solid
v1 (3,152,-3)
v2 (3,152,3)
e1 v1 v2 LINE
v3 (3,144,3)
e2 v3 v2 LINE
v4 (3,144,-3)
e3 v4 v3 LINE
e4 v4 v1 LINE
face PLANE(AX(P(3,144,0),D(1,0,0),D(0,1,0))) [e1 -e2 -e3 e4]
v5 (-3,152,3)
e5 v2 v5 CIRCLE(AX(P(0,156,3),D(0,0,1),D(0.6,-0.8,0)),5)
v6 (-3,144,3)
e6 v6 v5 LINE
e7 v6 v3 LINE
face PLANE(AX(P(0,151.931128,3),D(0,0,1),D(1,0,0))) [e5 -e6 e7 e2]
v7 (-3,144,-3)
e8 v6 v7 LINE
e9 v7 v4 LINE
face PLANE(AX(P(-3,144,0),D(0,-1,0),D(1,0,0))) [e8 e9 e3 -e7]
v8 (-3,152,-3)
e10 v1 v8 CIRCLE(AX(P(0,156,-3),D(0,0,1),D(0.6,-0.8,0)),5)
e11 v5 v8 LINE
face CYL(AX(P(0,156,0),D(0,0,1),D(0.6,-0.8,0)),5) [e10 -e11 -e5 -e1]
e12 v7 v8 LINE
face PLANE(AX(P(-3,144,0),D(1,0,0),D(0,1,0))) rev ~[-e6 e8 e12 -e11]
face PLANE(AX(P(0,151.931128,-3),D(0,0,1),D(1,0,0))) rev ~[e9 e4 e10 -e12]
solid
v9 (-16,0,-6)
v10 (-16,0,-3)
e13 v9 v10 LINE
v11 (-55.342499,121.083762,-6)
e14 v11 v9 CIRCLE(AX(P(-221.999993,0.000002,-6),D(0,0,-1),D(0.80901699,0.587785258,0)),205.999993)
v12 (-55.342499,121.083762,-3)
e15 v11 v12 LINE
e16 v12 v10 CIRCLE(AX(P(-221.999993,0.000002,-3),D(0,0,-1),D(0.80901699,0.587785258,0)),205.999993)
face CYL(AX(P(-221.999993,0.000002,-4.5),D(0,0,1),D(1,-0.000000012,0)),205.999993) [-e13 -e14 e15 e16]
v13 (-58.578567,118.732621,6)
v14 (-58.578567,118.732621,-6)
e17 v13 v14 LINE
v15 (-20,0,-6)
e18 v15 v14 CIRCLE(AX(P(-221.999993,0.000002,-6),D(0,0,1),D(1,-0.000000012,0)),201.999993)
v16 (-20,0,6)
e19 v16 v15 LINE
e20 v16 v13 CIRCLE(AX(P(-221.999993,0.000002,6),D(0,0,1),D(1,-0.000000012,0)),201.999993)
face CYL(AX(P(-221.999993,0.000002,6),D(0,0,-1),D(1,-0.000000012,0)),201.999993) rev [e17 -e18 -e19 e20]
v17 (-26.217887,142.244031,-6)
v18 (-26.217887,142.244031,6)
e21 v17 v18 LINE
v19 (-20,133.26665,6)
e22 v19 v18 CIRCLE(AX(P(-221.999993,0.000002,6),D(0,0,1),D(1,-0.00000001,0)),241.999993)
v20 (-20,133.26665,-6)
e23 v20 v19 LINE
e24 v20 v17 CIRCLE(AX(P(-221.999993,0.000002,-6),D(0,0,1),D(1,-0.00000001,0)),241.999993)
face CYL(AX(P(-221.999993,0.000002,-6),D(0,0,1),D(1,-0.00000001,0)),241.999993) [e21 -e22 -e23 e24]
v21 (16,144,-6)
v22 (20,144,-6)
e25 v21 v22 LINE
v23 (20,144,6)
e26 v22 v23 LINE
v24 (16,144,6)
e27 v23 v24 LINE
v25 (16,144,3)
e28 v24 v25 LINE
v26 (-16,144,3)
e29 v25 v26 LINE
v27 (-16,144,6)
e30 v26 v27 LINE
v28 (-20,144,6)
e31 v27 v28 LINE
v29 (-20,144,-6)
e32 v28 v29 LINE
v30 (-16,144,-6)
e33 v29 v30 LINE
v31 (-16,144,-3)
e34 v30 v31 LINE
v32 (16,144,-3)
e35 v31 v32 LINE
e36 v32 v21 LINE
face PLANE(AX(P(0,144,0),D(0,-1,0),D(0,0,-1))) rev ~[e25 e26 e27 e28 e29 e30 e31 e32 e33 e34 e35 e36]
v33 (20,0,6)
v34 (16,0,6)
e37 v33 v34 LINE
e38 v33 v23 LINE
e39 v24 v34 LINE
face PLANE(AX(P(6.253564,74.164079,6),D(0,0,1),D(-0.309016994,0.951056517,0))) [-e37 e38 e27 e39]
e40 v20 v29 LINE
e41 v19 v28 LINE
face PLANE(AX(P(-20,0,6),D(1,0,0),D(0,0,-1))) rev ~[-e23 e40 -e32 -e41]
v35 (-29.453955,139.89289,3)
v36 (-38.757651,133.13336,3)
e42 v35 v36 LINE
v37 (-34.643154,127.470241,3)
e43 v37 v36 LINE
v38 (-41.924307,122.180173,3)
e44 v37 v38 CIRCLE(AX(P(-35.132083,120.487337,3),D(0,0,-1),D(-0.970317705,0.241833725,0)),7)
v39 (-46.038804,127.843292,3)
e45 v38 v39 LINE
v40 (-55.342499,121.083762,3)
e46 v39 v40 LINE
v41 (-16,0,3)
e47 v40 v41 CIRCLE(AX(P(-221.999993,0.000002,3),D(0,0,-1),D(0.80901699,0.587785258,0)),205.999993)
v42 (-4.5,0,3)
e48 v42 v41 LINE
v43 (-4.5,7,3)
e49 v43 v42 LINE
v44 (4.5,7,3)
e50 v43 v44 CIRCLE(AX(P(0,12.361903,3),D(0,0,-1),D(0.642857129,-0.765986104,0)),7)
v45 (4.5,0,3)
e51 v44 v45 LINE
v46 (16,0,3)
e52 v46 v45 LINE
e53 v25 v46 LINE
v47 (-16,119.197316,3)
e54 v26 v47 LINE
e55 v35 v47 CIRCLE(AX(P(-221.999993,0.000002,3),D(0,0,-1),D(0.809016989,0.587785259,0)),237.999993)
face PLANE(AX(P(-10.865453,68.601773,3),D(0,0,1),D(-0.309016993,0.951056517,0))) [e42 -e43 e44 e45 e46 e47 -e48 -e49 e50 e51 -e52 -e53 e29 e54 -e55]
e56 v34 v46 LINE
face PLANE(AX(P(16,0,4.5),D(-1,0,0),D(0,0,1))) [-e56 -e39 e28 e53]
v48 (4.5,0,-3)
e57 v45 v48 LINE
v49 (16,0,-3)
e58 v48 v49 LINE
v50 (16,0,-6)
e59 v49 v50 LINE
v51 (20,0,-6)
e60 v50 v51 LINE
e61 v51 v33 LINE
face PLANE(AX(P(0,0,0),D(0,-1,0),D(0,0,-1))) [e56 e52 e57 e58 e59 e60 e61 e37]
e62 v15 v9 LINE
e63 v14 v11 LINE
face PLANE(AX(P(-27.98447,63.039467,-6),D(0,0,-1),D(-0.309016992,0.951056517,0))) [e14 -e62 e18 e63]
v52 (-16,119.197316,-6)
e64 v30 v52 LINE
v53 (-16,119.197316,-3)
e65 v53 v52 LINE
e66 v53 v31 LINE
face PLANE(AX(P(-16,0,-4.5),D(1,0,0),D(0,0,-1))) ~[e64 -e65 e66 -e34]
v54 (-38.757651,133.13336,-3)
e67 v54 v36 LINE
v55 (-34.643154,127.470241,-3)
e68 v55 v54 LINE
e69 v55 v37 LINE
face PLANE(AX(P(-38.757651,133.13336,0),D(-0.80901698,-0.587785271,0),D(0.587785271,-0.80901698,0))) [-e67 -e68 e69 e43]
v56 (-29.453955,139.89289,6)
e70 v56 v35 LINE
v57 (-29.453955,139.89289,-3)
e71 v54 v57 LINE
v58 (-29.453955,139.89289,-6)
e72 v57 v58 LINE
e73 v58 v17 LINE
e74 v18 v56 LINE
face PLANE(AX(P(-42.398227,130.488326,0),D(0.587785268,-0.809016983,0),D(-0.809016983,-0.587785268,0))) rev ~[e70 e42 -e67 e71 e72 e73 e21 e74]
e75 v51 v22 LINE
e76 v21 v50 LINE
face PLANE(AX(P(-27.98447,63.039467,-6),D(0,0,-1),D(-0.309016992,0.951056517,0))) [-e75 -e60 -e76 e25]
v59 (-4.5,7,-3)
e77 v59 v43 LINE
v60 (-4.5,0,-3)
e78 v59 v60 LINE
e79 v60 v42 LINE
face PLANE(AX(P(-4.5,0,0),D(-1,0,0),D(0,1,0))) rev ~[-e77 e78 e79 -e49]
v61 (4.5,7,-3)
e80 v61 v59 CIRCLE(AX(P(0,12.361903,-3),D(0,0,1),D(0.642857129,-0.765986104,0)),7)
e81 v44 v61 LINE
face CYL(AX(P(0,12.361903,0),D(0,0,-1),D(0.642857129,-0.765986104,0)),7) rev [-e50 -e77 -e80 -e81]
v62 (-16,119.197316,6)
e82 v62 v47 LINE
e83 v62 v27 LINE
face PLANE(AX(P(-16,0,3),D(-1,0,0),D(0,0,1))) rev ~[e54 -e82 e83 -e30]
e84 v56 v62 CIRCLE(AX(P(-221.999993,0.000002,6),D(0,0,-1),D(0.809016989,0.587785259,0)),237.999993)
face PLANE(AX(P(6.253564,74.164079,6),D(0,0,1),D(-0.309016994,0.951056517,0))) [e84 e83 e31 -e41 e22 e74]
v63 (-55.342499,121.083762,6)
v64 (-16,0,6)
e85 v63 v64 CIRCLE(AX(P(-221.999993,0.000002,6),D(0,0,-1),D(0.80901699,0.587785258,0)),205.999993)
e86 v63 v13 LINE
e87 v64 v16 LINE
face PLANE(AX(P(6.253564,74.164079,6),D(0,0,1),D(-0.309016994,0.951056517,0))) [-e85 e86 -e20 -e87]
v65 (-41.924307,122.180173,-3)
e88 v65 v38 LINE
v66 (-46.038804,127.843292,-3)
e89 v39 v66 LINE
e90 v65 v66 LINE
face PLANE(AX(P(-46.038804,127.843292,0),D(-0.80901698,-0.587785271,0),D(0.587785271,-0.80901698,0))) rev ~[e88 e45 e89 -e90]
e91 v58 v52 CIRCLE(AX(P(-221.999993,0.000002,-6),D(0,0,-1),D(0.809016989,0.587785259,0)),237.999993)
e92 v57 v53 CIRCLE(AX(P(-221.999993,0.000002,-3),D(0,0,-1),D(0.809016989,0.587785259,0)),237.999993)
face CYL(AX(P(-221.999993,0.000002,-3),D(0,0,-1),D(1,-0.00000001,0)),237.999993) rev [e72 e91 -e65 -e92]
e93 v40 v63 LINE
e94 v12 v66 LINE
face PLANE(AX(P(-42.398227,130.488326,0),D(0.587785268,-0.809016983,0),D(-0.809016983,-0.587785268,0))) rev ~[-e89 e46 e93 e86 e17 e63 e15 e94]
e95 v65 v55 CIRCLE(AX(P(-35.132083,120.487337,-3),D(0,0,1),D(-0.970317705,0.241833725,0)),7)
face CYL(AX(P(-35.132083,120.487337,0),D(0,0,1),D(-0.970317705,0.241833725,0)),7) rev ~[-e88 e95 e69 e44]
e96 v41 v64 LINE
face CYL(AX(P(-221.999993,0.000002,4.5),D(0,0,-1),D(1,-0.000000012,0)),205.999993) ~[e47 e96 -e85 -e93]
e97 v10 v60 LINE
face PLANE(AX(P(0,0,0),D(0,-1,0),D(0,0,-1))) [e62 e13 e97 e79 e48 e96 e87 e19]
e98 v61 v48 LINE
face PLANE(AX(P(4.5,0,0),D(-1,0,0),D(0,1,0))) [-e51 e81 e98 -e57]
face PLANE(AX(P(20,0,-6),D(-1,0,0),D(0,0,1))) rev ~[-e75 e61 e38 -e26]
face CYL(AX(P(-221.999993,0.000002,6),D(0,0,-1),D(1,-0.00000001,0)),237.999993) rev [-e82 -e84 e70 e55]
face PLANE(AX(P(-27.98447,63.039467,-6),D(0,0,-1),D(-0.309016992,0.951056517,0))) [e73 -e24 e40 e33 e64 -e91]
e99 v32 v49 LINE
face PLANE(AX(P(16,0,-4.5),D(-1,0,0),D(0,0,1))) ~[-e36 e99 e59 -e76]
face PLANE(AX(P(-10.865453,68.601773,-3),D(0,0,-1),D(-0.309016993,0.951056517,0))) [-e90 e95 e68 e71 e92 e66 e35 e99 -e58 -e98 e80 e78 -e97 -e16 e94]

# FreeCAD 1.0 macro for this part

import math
import FreeCAD as App
import Part
import Sketcher

V = App.Vector
Q = App.Units.Quantity


def add_polygon(sketch, points):
    """Adds a closed chain of lines whose ends are joined by coincident constraints."""
    first, n = sketch.GeometryCount, len(points)
    for a, b in zip(points, points[1:] + points[:1]):
        sketch.addGeometry(Part.LineSegment(App.Vector(*a, 0), App.Vector(*b, 0)), False)
    for i in range(n):
        sketch.addConstraint(Sketcher.Constraint("Coincident", first + i, 2, first + (i + 1) % n, 1))

doc = App.newDocument("Part")
body = doc.addObject("PartDesign::Body", "Body")

# Sketch on XZ plane
sketch1 = body.newObject("Sketcher::SketchObject", "Sketch")
sketch1.AttachmentSupport = (doc.getObject("XZ_Plane"), [""])
sketch1.MapMode = "FlatFace"
add_polygon(sketch1, [(-20, 6), (-20, -6), (-16, -6), (-16, -3), (16, -3), (16, -6), (20, -6), (20, 6), (16, 6), (16, 3), (-16, 3), (-16, 6)])  # lines 0-11
sketch1.addConstraint([
    Sketcher.Constraint("Vertical", 0),
    Sketcher.Constraint("Horizontal", 1),
    Sketcher.Constraint("Vertical", 2),
    Sketcher.Constraint("Horizontal", 3),
    Sketcher.Constraint("Vertical", 4),
    Sketcher.Constraint("Horizontal", 5),
    Sketcher.Constraint("Vertical", 6),
    Sketcher.Constraint("Horizontal", 7),
    Sketcher.Constraint("Vertical", 8),
    Sketcher.Constraint("Horizontal", 9),
    Sketcher.Constraint("Vertical", 10),
    Sketcher.Constraint("Horizontal", 11),
    Sketcher.Constraint("Symmetric", 0, 2, 6, 2, -1, 1),
    Sketcher.Constraint("Symmetric", 2, 2, 8, 2, -1, 1),
    Sketcher.Constraint("Symmetric", 4, 2, 10, 2, -1, 1),
    Sketcher.Constraint("Symmetric", 1, 2, 4, 2, -2),
    Sketcher.Constraint("DistanceX", 1, 1, 1, 2, 4.0),
    Sketcher.Constraint("DistanceX", 3, 1, 3, 2, 32.0),
    Sketcher.Constraint("DistanceY", 0, 2, 0, 1, 12.0),
    Sketcher.Constraint("DistanceY", 2, 1, 2, 2, 3.0),
])

# Sketch on XY plane
sketch2 = body.newObject("Sketcher::SketchObject", "Sketch001")
sketch2.AttachmentSupport = (doc.getObject("XY_Plane"), [""])
sketch2.MapMode = "FlatFace"
sketch2.addGeometry(Part.ArcOfCircle(Part.Circle(V(-222, 0, 0), V(0, 0, 1), 222), math.radians(0), math.radians(36)), False)
sketch2.addConstraint([
    Sketcher.Constraint("Coincident", 0, 1, -1, 1),
    Sketcher.Constraint("Radius", 0, 221.999993),
    Sketcher.Constraint("DistanceX", 0, 2, -1, 1, 42.398227),
    Sketcher.Constraint("DistanceY", -1, 1, 0, 2, 130.488326),
])
doc.recompute()

additivepipe = body.newObject("PartDesign::AdditivePipe", "AdditivePipe")
additivepipe.Profile = sketch1
additivepipe.Spine = (sketch2, ["Edge1"])

# Sketch on XZ plane
sketch3 = body.newObject("Sketcher::SketchObject", "Sketch002")
sketch3.AttachmentSupport = (doc.getObject("XZ_Plane"), [""])
sketch3.MapMode = "FlatFace"
add_polygon(sketch3, [(-20, 6), (-20, -6), (-16, -6), (-16, -3), (16, -3), (16, -6), (20, -6), (20, 6), (16, 6), (16, 3), (-16, 3), (-16, 6)])  # lines 0-11
sketch3.addConstraint([
    Sketcher.Constraint("Vertical", 0),
    Sketcher.Constraint("Horizontal", 1),
    Sketcher.Constraint("Vertical", 2),
    Sketcher.Constraint("Horizontal", 3),
    Sketcher.Constraint("Vertical", 4),
    Sketcher.Constraint("Horizontal", 5),
    Sketcher.Constraint("Vertical", 6),
    Sketcher.Constraint("Horizontal", 7),
    Sketcher.Constraint("Vertical", 8),
    Sketcher.Constraint("Horizontal", 9),
    Sketcher.Constraint("Vertical", 10),
    Sketcher.Constraint("Horizontal", 11),
    Sketcher.Constraint("Symmetric", 0, 2, 6, 2, -1, 1),
    Sketcher.Constraint("Symmetric", 2, 2, 8, 2, -1, 1),
    Sketcher.Constraint("Symmetric", 4, 2, 10, 2, -1, 1),
    Sketcher.Constraint("Symmetric", 1, 2, 4, 2, -2),
    Sketcher.Constraint("DistanceX", 1, 1, 1, 2, 4.0),
    Sketcher.Constraint("DistanceX", 3, 1, 3, 2, 32.0),
    Sketcher.Constraint("DistanceY", 0, 2, 0, 1, 12.0),
    Sketcher.Constraint("DistanceY", 2, 1, 2, 2, 3.0),
])

# Sketch on XY plane
sketch4 = body.newObject("Sketcher::SketchObject", "Sketch003")
sketch4.AttachmentSupport = (doc.getObject("XY_Plane"), [""])
sketch4.MapMode = "FlatFace"
sketch4.addGeometry(Part.LineSegment(V(0, 0, 0), V(0, 144, 0)), False)
sketch4.addConstraint([
    Sketcher.Constraint("Vertical", 0),
    Sketcher.Constraint("Coincident", 0, 1, -1, 1),
    Sketcher.Constraint("DistanceY", 0, 1, 0, 2, 144.0),
])
doc.recompute()

additivepipe2 = body.newObject("PartDesign::AdditivePipe", "AdditivePipe001")
additivepipe2.Profile = sketch3
additivepipe2.Spine = (sketch4, ["Edge1"])

# Sketch on XZ plane
sketch5 = body.newObject("Sketcher::SketchObject", "Sketch004")
sketch5.AttachmentSupport = (doc.getObject("XZ_Plane"), [""])
sketch5.MapMode = "FlatFace"
add_polygon(sketch5, [(-16, 6), (-16, 3), (16, 3), (16, 6)])  # lines 0-3
sketch5.addConstraint([
    Sketcher.Constraint("Vertical", 0),
    Sketcher.Constraint("Horizontal", 1),
    Sketcher.Constraint("Vertical", 2),
    Sketcher.Constraint("Horizontal", 3),
    Sketcher.Constraint("DistanceX", 1, 1, 1, 2, 32.0),
    Sketcher.Constraint("DistanceY", 0, 2, 0, 1, 3.0),
    Sketcher.Constraint("DistanceX", 0, 2, -1, 1, 16.0),
    Sketcher.Constraint("DistanceY", -1, 1, 0, 2, 3.0),
])

# Sketch on XY plane
sketch6 = body.newObject("Sketcher::SketchObject", "Sketch005")
sketch6.AttachmentSupport = (doc.getObject("XY_Plane"), [""])
sketch6.MapMode = "FlatFace"
sketch6.addGeometry(Part.ArcOfCircle(Part.Circle(V(-222, 0, 0), V(0, 0, 1), 222), math.radians(0), math.radians(36)), False)
sketch6.addConstraint([
    Sketcher.Constraint("Coincident", 0, 1, -1, 1),
    Sketcher.Constraint("Radius", 0, 221.999993),
    Sketcher.Constraint("DistanceX", 0, 2, -1, 1, 42.398227),
    Sketcher.Constraint("DistanceY", -1, 1, 0, 2, 130.488326),
])
doc.recompute()

subtractivepipe = body.newObject("PartDesign::SubtractivePipe", "SubtractivePipe")
subtractivepipe.Profile = sketch5
subtractivepipe.Spine = (sketch6, ["Edge1"])

# Sketch on XZ plane
sketch7 = body.newObject("Sketcher::SketchObject", "Sketch006")
sketch7.AttachmentSupport = (doc.getObject("XZ_Plane"), [""])
sketch7.MapMode = "FlatFace"
add_polygon(sketch7, [(-16, 6), (-16, 3), (16, 3), (16, 6)])  # lines 0-3
sketch7.addConstraint([
    Sketcher.Constraint("Vertical", 0),
    Sketcher.Constraint("Horizontal", 1),
    Sketcher.Constraint("Vertical", 2),
    Sketcher.Constraint("Horizontal", 3),
    Sketcher.Constraint("DistanceX", 1, 1, 1, 2, 32.0),
    Sketcher.Constraint("DistanceY", 0, 2, 0, 1, 3.0),
    Sketcher.Constraint("DistanceX", 0, 2, -1, 1, 16.0),
    Sketcher.Constraint("DistanceY", -1, 1, 0, 2, 3.0),
])

# Sketch on XY plane
sketch8 = body.newObject("Sketcher::SketchObject", "Sketch007")
sketch8.AttachmentSupport = (doc.getObject("XY_Plane"), [""])
sketch8.MapMode = "FlatFace"
sketch8.addGeometry(Part.LineSegment(V(0, 0, 0), V(0, 144, 0)), False)
sketch8.addConstraint([
    Sketcher.Constraint("Vertical", 0),
    Sketcher.Constraint("Coincident", 0, 1, -1, 1),
    Sketcher.Constraint("DistanceY", 0, 1, 0, 2, 144.0),
])
doc.recompute()

subtractivepipe2 = body.newObject("PartDesign::SubtractivePipe", "SubtractivePipe001")
subtractivepipe2.Profile = sketch7
subtractivepipe2.Spine = (sketch8, ["Edge1"])
doc.recompute()

mirrored = body.newObject("PartDesign::Mirrored", "Mirrored")
mirrored.Originals = [subtractivepipe]
mirrored.MirrorPlane = (doc.getObject("XY_Plane"), [""])
body.Tip = mirrored
doc.recompute()

mirrored2 = body.newObject("PartDesign::Mirrored", "Mirrored001")
mirrored2.Originals = [subtractivepipe2]
mirrored2.MirrorPlane = (doc.getObject("XY_Plane"), [""])
body.Tip = mirrored2

# Sketch on XY plane
sketch9 = body.newObject("Sketcher::SketchObject", "Sketch008")
sketch9.AttachmentSupport = (doc.getObject("XY_Plane"), [""])
sketch9.MapMode = "FlatFace"
sketch9.addGeometry([
    Part.LineSegment(V(-4, 0, 0), V(4, 0, 0)),
    Part.LineSegment(V(4, 0, 0), V(4, 7, 0)),
    Part.ArcOfCircle(Part.Circle(V(0, 12, 0), V(0, 0, 1), 7), math.radians(-50), math.radians(230)),
    Part.LineSegment(V(-4, 7, 0), V(-4, 0, 0)),
], False)
sketch9.addConstraint([
    Sketcher.Constraint("Coincident", 0, 2, 1, 1),
    Sketcher.Constraint("Coincident", 1, 2, 2, 1),
    Sketcher.Constraint("Coincident", 2, 2, 3, 1),
    Sketcher.Constraint("Coincident", 3, 2, 0, 1),
    Sketcher.Constraint("Horizontal", 0),
    Sketcher.Constraint("Vertical", 1),
    Sketcher.Constraint("Vertical", 3),
    Sketcher.Constraint("Symmetric", 0, 2, 3, 2, -1, 1),
    Sketcher.Constraint("PointOnObject", 2, 3, -2),
    Sketcher.Constraint("Radius", 2, 7.0),
    Sketcher.Constraint("DistanceX", 0, 1, 0, 2, 9.0),
    Sketcher.Constraint("DistanceY", 1, 1, 1, 2, 7.0),
])
pocket1 = body.newObject("PartDesign::Pocket", "Pocket")
pocket1.Profile = sketch9
pocket1.Type = "ThroughAll"
pocket1.Midplane = True

# Sketch on XY plane
sketch10 = body.newObject("Sketcher::SketchObject", "Sketch009")
sketch10.AttachmentSupport = (doc.getObject("XY_Plane"), [""])
sketch10.MapMode = "FlatFace"
sketch10.addGeometry([
    Part.LineSegment(V(-39, 133, 0), V(-46, 128, 0)),
    Part.LineSegment(V(-46, 128, 0), V(-42, 122, 0)),
    Part.ArcOfCircle(Part.Circle(V(-35, 120, 0), V(0, 0, 1), 7), math.radians(166), math.radians(446)),
    Part.LineSegment(V(-35, 127, 0), V(-39, 133, 0)),
], False)
sketch10.addConstraint([
    Sketcher.Constraint("Coincident", 0, 2, 1, 1),
    Sketcher.Constraint("Coincident", 1, 2, 2, 1),
    Sketcher.Constraint("Coincident", 2, 2, 3, 1),
    Sketcher.Constraint("Coincident", 3, 2, 0, 1),
    Sketcher.Constraint("Perpendicular", 0, 1),
    Sketcher.Constraint("Parallel", 1, 3),
    Sketcher.Constraint("Equal", 1, 3),
    Sketcher.Constraint("Radius", 2, 7.0),
    Sketcher.Constraint("Angle", 0, Q("-143.999996 deg")),
    Sketcher.Constraint("Distance", 0, 9.0),
    Sketcher.Constraint("Distance", 1, 7.0),
    Sketcher.Constraint("DistanceY", -1, 1, 2, 2, 127.470241),
    Sketcher.Constraint("DistanceX", 3, 2, -1, 1, 38.757651),
])
pocket2 = body.newObject("PartDesign::Pocket", "Pocket001")
pocket2.Profile = sketch10
pocket2.Type = "ThroughAll"
pocket2.Midplane = True
body2 = doc.addObject("PartDesign::Body", "Body001")

# Sketch on XY plane
sketch11 = body2.newObject("Sketcher::SketchObject", "Sketch010")
sketch11.AttachmentSupport = (doc.getObject("XY_Plane001"), [""])
sketch11.MapMode = "FlatFace"
sketch11.addGeometry([
    Part.LineSegment(V(-3, 144, 0), V(3, 144, 0)),
    Part.LineSegment(V(3, 144, 0), V(3, 152, 0)),
    Part.ArcOfCircle(Part.Circle(V(0, 156, 0), V(0, 0, 1), 5), math.radians(-53), math.radians(233)),
    Part.LineSegment(V(-3, 152, 0), V(-3, 144, 0)),
], False)
sketch11.addConstraint([
    Sketcher.Constraint("Coincident", 0, 2, 1, 1),
    Sketcher.Constraint("Coincident", 1, 2, 2, 1),
    Sketcher.Constraint("Coincident", 2, 2, 3, 1),
    Sketcher.Constraint("Coincident", 3, 2, 0, 1),
    Sketcher.Constraint("Horizontal", 0),
    Sketcher.Constraint("Vertical", 1),
    Sketcher.Constraint("Vertical", 3),
    Sketcher.Constraint("Symmetric", 1, 2, 2, 2, -2),
    Sketcher.Constraint("Radius", 2, 5.0),
    Sketcher.Constraint("DistanceX", 0, 1, 0, 2, 6.0),
    Sketcher.Constraint("DistanceY", 1, 1, 1, 2, 8.0),
    Sketcher.Constraint("DistanceY", -1, 1, 2, 3, 156.0),
])
pad1 = body2.newObject("PartDesign::Pad", "Pad")
pad1.Profile = sketch11
pad1.Length = 6
pad1.Midplane = True

doc.recompute()
